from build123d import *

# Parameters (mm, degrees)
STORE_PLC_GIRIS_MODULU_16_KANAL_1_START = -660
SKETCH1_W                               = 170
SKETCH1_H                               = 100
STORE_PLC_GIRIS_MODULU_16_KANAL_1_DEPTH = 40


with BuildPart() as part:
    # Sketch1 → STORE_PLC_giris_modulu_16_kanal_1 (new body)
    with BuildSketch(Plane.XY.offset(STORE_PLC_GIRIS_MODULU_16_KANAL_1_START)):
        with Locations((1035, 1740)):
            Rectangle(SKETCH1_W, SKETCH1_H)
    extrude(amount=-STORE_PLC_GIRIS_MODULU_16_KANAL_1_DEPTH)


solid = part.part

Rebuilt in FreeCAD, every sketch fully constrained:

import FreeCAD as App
import Part
import Sketcher
from FreeCAD import Vector


def add_polygon(sketch, points):
    """Adds a closed chain of lines whose ends are joined by coincident constraints."""
    first, n = sketch.GeometryCount, len(points)
    for a, b in zip(points, points[1:] + points[:1]):
        sketch.addGeometry(Part.LineSegment(App.Vector(*a, 0), App.Vector(*b, 0)), False)
    for i in range(n):
        sketch.addConstraint(Sketcher.Constraint("Coincident", first + i, 2, first + (i + 1) % n, 1))

doc = App.newDocument("Part")
body = doc.addObject("PartDesign::Body", "Body")

# Sketch on XY plane
sketch1 = body.newObject("Sketcher::SketchObject", "Sketch")
sketch1.AttachmentSupport = (doc.getObject("XY_Plane"), [""])
sketch1.MapMode = "FlatFace"
sketch1.AttachmentOffset = App.Placement(Vector(0, 0, -660), App.Rotation())
add_polygon(sketch1, [(950, 1790), (950, 1690), (1120, 1690), (1120, 1790)])  # lines 0-3
sketch1.addConstraint([
    Sketcher.Constraint("Vertical", 0),
    Sketcher.Constraint("Horizontal", 1),
    Sketcher.Constraint("Vertical", 2),
    Sketcher.Constraint("Horizontal", 3),
    Sketcher.Constraint("DistanceX", 1, 1, 1, 2, 170.0),
    Sketcher.Constraint("DistanceY", 0, 2, 0, 1, 100.0),
    Sketcher.Constraint("DistanceX", -1, 1, 0, 2, 950.0),
    Sketcher.Constraint("DistanceY", -1, 1, 0, 2, 1690.0),
])
pad1 = body.newObject("PartDesign::Pad", "Pad")
pad1.Profile = sketch1
pad1.Length = 40
pad1.Reversed = True

doc.recompute()
